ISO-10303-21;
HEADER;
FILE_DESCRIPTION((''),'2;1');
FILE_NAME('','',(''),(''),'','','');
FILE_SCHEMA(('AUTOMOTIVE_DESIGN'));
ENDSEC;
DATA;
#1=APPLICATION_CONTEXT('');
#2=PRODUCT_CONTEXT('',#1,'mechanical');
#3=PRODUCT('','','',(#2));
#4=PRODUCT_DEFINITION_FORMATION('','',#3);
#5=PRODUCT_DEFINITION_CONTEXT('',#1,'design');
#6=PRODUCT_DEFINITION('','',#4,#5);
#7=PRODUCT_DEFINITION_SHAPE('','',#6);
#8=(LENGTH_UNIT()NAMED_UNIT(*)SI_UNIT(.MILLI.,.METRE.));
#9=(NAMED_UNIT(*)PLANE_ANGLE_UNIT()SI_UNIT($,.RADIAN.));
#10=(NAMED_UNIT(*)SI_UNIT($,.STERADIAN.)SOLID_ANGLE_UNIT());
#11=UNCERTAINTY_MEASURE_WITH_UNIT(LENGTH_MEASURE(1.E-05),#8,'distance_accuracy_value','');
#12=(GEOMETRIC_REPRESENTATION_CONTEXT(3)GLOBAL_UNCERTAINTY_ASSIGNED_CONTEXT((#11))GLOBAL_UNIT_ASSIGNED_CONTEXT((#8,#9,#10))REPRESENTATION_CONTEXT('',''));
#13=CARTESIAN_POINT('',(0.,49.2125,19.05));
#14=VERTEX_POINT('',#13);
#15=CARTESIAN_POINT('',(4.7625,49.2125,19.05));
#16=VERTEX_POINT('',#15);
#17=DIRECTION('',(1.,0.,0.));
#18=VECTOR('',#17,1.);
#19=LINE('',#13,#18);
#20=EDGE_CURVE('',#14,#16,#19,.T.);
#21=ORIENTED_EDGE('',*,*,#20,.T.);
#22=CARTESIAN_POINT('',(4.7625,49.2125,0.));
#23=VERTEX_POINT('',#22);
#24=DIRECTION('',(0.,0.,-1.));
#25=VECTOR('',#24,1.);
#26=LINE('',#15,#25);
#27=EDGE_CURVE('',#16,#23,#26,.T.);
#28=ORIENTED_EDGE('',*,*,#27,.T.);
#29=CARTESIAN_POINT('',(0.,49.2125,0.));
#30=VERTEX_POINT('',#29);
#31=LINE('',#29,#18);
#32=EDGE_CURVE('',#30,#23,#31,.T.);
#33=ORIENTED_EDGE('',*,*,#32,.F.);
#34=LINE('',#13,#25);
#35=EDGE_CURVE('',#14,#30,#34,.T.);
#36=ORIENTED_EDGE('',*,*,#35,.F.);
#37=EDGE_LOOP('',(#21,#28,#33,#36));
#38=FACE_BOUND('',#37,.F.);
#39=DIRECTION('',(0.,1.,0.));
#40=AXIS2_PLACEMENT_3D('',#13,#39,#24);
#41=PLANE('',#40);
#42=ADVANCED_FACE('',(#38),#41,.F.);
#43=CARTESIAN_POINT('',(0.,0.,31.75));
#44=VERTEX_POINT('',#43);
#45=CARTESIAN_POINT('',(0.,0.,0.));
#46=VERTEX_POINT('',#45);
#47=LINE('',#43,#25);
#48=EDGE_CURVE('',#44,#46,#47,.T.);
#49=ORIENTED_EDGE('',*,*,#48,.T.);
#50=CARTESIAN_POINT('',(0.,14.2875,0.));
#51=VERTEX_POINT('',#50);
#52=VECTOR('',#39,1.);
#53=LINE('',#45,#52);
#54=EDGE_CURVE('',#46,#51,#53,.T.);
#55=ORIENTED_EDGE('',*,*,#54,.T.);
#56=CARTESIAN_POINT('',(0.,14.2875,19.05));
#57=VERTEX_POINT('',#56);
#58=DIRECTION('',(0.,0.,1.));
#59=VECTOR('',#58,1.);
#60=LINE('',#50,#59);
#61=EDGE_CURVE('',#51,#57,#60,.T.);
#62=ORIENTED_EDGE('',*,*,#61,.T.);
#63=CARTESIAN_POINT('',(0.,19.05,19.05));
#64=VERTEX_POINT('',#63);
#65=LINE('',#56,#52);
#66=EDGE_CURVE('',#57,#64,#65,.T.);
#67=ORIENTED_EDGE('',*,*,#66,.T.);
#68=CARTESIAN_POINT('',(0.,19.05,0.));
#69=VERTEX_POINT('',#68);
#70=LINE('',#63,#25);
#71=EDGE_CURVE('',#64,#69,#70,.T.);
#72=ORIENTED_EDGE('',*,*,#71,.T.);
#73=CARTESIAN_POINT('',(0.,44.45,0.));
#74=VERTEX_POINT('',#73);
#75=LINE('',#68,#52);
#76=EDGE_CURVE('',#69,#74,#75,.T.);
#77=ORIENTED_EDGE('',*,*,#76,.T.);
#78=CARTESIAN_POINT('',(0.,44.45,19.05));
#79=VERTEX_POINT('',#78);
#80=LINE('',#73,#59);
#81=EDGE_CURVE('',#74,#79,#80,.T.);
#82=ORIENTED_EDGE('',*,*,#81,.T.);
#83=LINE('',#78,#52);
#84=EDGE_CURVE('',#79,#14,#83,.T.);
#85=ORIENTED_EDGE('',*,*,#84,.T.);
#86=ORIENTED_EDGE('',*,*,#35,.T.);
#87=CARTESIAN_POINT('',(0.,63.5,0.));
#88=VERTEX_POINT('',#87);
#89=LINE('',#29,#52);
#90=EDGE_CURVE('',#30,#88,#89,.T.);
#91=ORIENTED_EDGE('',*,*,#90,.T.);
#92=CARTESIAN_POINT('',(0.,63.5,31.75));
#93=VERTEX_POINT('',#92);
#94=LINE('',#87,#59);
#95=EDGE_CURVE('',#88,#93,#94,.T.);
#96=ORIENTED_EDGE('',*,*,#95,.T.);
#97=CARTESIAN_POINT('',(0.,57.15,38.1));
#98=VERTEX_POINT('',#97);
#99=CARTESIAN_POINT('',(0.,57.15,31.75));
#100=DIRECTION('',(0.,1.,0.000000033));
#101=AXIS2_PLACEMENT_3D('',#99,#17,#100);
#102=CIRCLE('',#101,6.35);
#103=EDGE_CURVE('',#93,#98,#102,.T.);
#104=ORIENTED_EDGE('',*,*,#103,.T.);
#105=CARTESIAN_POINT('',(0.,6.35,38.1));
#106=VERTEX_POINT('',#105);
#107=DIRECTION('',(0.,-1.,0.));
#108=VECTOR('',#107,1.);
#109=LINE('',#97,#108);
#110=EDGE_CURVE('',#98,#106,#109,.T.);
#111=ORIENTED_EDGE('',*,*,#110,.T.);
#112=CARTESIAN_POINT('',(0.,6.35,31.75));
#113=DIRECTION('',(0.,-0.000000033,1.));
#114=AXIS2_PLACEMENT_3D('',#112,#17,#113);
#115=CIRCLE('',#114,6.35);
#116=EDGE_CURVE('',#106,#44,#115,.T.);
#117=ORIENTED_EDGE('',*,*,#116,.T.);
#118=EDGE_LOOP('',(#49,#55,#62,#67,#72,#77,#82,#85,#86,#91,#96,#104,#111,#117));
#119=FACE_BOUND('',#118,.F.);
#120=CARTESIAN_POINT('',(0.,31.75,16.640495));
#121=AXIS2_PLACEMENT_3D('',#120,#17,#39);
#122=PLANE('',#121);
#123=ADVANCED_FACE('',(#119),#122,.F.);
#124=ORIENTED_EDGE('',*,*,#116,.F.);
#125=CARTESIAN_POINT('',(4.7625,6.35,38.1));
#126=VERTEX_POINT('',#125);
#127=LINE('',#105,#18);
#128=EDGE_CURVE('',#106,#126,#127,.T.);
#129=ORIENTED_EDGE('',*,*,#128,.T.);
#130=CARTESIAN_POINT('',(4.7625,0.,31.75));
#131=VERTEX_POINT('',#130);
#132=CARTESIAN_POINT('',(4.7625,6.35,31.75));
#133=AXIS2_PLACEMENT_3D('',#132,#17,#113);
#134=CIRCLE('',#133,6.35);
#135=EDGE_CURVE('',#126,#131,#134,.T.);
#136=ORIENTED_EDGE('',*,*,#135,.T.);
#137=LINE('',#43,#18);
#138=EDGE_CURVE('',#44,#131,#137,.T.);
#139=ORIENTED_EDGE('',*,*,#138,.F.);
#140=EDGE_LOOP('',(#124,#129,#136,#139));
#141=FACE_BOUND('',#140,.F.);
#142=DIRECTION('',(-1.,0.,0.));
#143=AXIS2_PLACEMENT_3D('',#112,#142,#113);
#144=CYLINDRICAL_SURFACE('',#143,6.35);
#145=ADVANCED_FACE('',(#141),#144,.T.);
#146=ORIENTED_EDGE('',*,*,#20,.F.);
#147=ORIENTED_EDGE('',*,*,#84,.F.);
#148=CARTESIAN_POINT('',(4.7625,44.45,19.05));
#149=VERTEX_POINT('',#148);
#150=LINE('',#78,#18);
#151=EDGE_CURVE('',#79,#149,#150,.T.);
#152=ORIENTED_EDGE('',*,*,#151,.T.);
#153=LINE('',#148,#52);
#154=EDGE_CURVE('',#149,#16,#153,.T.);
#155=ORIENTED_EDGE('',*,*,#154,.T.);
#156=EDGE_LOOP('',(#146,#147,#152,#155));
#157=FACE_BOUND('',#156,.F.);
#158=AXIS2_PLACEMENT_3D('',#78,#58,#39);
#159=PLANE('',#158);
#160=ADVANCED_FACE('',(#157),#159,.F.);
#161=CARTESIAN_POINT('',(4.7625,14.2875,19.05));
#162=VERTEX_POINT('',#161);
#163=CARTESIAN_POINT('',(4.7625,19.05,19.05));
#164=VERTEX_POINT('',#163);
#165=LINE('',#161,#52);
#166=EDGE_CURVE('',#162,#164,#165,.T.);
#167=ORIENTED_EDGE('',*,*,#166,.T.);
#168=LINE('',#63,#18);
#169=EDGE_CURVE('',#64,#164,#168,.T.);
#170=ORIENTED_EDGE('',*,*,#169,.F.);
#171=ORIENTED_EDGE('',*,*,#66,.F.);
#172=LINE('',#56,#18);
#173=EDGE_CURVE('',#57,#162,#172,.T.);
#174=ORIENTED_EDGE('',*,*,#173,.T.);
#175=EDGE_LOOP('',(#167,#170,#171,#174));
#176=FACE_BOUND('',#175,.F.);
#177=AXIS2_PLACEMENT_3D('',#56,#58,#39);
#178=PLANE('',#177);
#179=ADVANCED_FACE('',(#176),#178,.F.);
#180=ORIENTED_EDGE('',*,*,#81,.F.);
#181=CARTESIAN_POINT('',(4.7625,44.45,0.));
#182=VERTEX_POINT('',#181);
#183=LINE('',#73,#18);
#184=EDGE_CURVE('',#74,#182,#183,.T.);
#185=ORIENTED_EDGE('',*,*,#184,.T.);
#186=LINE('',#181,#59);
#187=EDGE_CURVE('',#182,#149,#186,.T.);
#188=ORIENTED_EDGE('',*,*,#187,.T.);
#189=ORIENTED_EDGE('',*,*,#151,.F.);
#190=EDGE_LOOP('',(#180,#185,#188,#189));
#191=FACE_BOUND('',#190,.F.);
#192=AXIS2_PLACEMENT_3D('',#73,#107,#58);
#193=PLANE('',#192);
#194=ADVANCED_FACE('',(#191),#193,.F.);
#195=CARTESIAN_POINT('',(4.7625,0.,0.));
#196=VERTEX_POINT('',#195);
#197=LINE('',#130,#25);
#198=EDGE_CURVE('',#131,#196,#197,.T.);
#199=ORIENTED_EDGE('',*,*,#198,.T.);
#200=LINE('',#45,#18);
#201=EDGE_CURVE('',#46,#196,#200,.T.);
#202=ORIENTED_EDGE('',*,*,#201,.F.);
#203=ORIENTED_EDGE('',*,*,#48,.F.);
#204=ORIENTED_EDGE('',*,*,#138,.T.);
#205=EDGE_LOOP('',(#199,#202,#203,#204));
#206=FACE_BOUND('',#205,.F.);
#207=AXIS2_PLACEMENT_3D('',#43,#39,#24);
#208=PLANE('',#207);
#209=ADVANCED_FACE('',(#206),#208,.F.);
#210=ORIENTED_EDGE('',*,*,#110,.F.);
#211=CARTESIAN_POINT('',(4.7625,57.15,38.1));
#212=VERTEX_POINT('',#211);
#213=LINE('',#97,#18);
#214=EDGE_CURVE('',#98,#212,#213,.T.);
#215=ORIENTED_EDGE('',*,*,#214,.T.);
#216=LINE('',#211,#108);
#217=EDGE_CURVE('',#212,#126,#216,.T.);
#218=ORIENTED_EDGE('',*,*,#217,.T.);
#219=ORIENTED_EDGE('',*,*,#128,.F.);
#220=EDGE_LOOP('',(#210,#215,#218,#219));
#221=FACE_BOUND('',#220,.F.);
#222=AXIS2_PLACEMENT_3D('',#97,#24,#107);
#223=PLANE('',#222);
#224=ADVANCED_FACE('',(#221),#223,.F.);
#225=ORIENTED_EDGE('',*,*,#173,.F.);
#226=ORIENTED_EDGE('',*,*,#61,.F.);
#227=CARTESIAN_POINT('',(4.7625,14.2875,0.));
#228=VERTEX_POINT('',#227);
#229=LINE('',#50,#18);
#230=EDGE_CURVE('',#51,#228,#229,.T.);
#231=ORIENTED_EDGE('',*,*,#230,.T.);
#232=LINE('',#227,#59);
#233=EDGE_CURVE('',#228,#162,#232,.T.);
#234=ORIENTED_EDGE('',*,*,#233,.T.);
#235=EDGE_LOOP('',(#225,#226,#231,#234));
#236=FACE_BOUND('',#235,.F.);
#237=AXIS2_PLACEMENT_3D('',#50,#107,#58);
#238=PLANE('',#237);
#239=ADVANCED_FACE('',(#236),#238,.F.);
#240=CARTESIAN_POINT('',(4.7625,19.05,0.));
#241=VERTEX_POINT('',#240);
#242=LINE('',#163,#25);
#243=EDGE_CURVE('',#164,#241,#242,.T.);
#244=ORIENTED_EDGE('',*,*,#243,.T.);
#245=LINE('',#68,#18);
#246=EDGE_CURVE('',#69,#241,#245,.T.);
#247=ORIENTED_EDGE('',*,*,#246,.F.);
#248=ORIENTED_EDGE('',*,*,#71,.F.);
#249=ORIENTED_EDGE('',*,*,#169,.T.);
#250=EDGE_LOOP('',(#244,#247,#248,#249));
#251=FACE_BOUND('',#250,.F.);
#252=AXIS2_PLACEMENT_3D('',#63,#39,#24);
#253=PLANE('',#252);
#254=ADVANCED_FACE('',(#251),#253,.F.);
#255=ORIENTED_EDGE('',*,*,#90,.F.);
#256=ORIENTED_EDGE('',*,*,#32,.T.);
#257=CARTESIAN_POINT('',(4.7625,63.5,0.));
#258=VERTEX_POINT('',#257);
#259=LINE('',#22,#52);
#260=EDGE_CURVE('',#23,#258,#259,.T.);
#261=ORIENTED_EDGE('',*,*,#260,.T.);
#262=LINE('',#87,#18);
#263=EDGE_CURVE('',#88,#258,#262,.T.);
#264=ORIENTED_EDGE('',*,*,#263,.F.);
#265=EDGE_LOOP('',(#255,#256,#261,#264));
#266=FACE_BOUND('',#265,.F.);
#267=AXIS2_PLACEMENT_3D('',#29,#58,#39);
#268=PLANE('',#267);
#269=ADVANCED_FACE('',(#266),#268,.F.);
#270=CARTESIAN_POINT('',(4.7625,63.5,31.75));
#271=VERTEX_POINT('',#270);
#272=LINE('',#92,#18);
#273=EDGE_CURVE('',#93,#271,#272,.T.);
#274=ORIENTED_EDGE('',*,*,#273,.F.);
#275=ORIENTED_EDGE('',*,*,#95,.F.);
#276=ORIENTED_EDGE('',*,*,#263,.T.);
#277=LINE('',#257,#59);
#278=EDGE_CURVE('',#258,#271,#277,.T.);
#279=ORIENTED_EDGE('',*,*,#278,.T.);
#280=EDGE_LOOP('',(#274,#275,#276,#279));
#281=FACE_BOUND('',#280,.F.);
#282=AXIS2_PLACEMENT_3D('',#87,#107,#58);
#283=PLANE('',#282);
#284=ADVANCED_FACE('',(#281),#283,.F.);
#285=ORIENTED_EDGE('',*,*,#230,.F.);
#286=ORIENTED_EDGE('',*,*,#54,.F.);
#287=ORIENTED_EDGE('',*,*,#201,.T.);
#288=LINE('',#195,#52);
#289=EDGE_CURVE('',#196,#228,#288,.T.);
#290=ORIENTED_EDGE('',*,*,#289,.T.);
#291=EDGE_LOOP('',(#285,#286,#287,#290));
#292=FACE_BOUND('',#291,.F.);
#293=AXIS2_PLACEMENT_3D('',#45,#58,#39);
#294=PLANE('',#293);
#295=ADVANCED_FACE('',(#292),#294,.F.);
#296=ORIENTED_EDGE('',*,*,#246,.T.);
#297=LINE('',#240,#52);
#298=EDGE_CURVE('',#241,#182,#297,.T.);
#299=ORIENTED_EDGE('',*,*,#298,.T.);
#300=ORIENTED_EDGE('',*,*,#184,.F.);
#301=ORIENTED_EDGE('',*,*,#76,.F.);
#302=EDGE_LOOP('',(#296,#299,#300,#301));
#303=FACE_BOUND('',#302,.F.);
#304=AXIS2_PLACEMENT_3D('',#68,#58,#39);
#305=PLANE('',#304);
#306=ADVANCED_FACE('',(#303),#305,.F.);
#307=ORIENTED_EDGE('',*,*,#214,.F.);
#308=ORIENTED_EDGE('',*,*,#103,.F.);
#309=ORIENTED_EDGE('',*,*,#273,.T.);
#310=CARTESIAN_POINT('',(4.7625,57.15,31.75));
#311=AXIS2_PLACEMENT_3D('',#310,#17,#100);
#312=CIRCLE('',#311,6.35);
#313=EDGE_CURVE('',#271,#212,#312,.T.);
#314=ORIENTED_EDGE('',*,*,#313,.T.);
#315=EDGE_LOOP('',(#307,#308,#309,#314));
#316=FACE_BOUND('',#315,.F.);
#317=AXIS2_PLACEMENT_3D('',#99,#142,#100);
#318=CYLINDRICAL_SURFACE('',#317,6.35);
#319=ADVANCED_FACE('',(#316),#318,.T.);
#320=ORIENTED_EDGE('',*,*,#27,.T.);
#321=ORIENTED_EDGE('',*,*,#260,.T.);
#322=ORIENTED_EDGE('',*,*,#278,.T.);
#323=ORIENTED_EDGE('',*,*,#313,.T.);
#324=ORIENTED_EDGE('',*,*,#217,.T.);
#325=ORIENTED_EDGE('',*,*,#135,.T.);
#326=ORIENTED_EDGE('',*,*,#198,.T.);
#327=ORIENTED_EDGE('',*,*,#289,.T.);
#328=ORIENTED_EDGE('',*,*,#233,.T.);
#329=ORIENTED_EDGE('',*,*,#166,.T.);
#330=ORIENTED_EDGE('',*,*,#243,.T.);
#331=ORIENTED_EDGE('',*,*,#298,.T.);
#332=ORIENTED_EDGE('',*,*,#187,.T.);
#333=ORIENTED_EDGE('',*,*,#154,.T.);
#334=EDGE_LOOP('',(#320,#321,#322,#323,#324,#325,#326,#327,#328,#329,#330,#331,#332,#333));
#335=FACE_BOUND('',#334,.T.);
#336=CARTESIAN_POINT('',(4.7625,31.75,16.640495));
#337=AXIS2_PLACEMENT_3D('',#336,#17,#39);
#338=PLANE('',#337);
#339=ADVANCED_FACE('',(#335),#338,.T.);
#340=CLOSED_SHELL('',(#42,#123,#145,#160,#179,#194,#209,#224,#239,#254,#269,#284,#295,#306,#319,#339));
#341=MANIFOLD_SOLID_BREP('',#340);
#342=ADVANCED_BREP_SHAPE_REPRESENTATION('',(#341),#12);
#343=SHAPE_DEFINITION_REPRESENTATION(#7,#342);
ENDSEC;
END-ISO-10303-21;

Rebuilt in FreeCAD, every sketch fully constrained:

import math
import FreeCAD as App
import Part
import Sketcher
from FreeCAD import Vector
Q = App.Units.Quantity

doc = App.newDocument("Part")
body = doc.addObject("PartDesign::Body", "Body")

# Sketch on YZ plane
sketch1 = doc.addObject("Sketcher::SketchObject", "Sketch")
body.addObject(sketch1)
sketch1.AttachmentSupport = (doc.YZ_Plane, [""])
sketch1.MapMode = "FlatFace"
sketch1.addGeometry(Part.LineSegment(Vector(0, 31.8, 0), Vector(0, 0, 0)), False)
sketch1.addGeometry(Part.LineSegment(Vector(0, 0, 0), Vector(14.3, 0, 0)), False)
sketch1.addGeometry(Part.LineSegment(Vector(14.3, 0, 0), Vector(14.3, 19.1, 0)), False)
sketch1.addGeometry(Part.LineSegment(Vector(14.3, 19.1, 0), Vector(19.1, 19.1, 0)), False)
sketch1.addGeometry(Part.LineSegment(Vector(19.1, 19.1, 0), Vector(19.1, 0, 0)), False)
sketch1.addGeometry(Part.LineSegment(Vector(19.1, 0, 0), Vector(44.5, 0, 0)), False)
sketch1.addGeometry(Part.LineSegment(Vector(44.5, 0, 0), Vector(44.5, 19.1, 0)), False)
sketch1.addGeometry(Part.LineSegment(Vector(44.5, 19.1, 0), Vector(49.2, 19.1, 0)), False)
sketch1.addGeometry(Part.LineSegment(Vector(49.2, 19.1, 0), Vector(49.2, 0, 0)), False)
sketch1.addGeometry(Part.LineSegment(Vector(49.2, 0, 0), Vector(63.5, 0, 0)), False)
sketch1.addGeometry(Part.LineSegment(Vector(63.5, 0, 0), Vector(63.5, 31.8, 0)), False)
sketch1.addGeometry(Part.ArcOfCircle(Part.Circle(Vector(57.1, 31.7, 0), Vector(0, 0, 1), 6.4), math.radians(0), math.radians(90)), False)
sketch1.addGeometry(Part.LineSegment(Vector(57.1, 38.1, 0), Vector(6.3, 38.1, 0)), False)
sketch1.addGeometry(Part.ArcOfCircle(Part.Circle(Vector(6.4, 31.7, 0), Vector(0, 0, 1), 6.4), math.radians(90), math.radians(180)), False)
sketch1.addConstraint(Sketcher.Constraint("Coincident", 0, 2, 1, 1))
sketch1.addConstraint(Sketcher.Constraint("Coincident", 1, 2, 2, 1))
sketch1.addConstraint(Sketcher.Constraint("Coincident", 2, 2, 3, 1))
sketch1.addConstraint(Sketcher.Constraint("Coincident", 3, 2, 4, 1))
sketch1.addConstraint(Sketcher.Constraint("Coincident", 4, 2, 5, 1))
sketch1.addConstraint(Sketcher.Constraint("Coincident", 5, 2, 6, 1))
sketch1.addConstraint(Sketcher.Constraint("Coincident", 6, 2, 7, 1))
sketch1.addConstraint(Sketcher.Constraint("Coincident", 7, 2, 8, 1))
sketch1.addConstraint(Sketcher.Constraint("Coincident", 8, 2, 9, 1))
sketch1.addConstraint(Sketcher.Constraint("Coincident", 9, 2, 10, 1))
sketch1.addConstraint(Sketcher.Constraint("Tangent", 10, 2, 11, 1))
sketch1.addConstraint(Sketcher.Constraint("Tangent", 11, 2, 12, 1))
sketch1.addConstraint(Sketcher.Constraint("Tangent", 12, 2, 13, 1))
sketch1.addConstraint(Sketcher.Constraint("Tangent", 13, 2, 0, 1))
sketch1.addConstraint(Sketcher.Constraint("Vertical", 0))
sketch1.addConstraint(Sketcher.Constraint("Horizontal", 1))
sketch1.addConstraint(Sketcher.Constraint("Vertical", 2))
sketch1.addConstraint(Sketcher.Constraint("Horizontal", 3))
sketch1.addConstraint(Sketcher.Constraint("Vertical", 4))
sketch1.addConstraint(Sketcher.Constraint("Horizontal", 5))
sketch1.addConstraint(Sketcher.Constraint("Vertical", 6))
sketch1.addConstraint(Sketcher.Constraint("Horizontal", 7))
sketch1.addConstraint(Sketcher.Constraint("Vertical", 8))
sketch1.addConstraint(Sketcher.Constraint("Horizontal", 9))
sketch1.addConstraint(Sketcher.Constraint("Vertical", 10))
sketch1.addConstraint(Sketcher.Constraint("Horizontal", 12))
sketch1.addConstraint(Sketcher.Constraint("Coincident", 0, 2, -1, 1))
sketch1.addConstraint(Sketcher.Constraint("Equal", 11, 13))
sketch1.addConstraint(Sketcher.Constraint("PointOnObject", 4, 2, -1))
sketch1.addConstraint(Sketcher.Constraint("PointOnObject", 8, 2, -1))
sketch1.addConstraint(Sketcher.Constraint("Horizontal", 3, 2, 6, 2))
sketch1.addConstraint(Sketcher.Constraint("Equal", 3, 7))
sketch1.addConstraint(Sketcher.Constraint("Equal", 1, 9))
sketch1.addConstraint(Sketcher.Constraint("DistanceX", 5, 1, 5, 2, Q("1 in")))
sketch1.addConstraint(Sketcher.Constraint("DistanceX", 12, 2, 12, 1, Q("2 in")))
sketch1.addConstraint(Sketcher.Constraint("Radius", 11, Q("0.25 in")))
sketch1.addConstraint(Sketcher.Constraint("DistanceY", 0, 2, 0, 1, Q("1.25 in")))
sketch1.addConstraint(Sketcher.Constraint("DistanceY", 2, 1, 2, 2, Q("0.75 in")))
sketch1.addConstraint(Sketcher.Constraint("DistanceX", 1, 1, 1, 2, Q("0.5625 in")))
pad1 = doc.addObject("PartDesign::Pad", "Pad")
body.addObject(pad1)
pad1.Profile = sketch1
pad1.Length = Q("0.1875 in")

doc.recompute()
